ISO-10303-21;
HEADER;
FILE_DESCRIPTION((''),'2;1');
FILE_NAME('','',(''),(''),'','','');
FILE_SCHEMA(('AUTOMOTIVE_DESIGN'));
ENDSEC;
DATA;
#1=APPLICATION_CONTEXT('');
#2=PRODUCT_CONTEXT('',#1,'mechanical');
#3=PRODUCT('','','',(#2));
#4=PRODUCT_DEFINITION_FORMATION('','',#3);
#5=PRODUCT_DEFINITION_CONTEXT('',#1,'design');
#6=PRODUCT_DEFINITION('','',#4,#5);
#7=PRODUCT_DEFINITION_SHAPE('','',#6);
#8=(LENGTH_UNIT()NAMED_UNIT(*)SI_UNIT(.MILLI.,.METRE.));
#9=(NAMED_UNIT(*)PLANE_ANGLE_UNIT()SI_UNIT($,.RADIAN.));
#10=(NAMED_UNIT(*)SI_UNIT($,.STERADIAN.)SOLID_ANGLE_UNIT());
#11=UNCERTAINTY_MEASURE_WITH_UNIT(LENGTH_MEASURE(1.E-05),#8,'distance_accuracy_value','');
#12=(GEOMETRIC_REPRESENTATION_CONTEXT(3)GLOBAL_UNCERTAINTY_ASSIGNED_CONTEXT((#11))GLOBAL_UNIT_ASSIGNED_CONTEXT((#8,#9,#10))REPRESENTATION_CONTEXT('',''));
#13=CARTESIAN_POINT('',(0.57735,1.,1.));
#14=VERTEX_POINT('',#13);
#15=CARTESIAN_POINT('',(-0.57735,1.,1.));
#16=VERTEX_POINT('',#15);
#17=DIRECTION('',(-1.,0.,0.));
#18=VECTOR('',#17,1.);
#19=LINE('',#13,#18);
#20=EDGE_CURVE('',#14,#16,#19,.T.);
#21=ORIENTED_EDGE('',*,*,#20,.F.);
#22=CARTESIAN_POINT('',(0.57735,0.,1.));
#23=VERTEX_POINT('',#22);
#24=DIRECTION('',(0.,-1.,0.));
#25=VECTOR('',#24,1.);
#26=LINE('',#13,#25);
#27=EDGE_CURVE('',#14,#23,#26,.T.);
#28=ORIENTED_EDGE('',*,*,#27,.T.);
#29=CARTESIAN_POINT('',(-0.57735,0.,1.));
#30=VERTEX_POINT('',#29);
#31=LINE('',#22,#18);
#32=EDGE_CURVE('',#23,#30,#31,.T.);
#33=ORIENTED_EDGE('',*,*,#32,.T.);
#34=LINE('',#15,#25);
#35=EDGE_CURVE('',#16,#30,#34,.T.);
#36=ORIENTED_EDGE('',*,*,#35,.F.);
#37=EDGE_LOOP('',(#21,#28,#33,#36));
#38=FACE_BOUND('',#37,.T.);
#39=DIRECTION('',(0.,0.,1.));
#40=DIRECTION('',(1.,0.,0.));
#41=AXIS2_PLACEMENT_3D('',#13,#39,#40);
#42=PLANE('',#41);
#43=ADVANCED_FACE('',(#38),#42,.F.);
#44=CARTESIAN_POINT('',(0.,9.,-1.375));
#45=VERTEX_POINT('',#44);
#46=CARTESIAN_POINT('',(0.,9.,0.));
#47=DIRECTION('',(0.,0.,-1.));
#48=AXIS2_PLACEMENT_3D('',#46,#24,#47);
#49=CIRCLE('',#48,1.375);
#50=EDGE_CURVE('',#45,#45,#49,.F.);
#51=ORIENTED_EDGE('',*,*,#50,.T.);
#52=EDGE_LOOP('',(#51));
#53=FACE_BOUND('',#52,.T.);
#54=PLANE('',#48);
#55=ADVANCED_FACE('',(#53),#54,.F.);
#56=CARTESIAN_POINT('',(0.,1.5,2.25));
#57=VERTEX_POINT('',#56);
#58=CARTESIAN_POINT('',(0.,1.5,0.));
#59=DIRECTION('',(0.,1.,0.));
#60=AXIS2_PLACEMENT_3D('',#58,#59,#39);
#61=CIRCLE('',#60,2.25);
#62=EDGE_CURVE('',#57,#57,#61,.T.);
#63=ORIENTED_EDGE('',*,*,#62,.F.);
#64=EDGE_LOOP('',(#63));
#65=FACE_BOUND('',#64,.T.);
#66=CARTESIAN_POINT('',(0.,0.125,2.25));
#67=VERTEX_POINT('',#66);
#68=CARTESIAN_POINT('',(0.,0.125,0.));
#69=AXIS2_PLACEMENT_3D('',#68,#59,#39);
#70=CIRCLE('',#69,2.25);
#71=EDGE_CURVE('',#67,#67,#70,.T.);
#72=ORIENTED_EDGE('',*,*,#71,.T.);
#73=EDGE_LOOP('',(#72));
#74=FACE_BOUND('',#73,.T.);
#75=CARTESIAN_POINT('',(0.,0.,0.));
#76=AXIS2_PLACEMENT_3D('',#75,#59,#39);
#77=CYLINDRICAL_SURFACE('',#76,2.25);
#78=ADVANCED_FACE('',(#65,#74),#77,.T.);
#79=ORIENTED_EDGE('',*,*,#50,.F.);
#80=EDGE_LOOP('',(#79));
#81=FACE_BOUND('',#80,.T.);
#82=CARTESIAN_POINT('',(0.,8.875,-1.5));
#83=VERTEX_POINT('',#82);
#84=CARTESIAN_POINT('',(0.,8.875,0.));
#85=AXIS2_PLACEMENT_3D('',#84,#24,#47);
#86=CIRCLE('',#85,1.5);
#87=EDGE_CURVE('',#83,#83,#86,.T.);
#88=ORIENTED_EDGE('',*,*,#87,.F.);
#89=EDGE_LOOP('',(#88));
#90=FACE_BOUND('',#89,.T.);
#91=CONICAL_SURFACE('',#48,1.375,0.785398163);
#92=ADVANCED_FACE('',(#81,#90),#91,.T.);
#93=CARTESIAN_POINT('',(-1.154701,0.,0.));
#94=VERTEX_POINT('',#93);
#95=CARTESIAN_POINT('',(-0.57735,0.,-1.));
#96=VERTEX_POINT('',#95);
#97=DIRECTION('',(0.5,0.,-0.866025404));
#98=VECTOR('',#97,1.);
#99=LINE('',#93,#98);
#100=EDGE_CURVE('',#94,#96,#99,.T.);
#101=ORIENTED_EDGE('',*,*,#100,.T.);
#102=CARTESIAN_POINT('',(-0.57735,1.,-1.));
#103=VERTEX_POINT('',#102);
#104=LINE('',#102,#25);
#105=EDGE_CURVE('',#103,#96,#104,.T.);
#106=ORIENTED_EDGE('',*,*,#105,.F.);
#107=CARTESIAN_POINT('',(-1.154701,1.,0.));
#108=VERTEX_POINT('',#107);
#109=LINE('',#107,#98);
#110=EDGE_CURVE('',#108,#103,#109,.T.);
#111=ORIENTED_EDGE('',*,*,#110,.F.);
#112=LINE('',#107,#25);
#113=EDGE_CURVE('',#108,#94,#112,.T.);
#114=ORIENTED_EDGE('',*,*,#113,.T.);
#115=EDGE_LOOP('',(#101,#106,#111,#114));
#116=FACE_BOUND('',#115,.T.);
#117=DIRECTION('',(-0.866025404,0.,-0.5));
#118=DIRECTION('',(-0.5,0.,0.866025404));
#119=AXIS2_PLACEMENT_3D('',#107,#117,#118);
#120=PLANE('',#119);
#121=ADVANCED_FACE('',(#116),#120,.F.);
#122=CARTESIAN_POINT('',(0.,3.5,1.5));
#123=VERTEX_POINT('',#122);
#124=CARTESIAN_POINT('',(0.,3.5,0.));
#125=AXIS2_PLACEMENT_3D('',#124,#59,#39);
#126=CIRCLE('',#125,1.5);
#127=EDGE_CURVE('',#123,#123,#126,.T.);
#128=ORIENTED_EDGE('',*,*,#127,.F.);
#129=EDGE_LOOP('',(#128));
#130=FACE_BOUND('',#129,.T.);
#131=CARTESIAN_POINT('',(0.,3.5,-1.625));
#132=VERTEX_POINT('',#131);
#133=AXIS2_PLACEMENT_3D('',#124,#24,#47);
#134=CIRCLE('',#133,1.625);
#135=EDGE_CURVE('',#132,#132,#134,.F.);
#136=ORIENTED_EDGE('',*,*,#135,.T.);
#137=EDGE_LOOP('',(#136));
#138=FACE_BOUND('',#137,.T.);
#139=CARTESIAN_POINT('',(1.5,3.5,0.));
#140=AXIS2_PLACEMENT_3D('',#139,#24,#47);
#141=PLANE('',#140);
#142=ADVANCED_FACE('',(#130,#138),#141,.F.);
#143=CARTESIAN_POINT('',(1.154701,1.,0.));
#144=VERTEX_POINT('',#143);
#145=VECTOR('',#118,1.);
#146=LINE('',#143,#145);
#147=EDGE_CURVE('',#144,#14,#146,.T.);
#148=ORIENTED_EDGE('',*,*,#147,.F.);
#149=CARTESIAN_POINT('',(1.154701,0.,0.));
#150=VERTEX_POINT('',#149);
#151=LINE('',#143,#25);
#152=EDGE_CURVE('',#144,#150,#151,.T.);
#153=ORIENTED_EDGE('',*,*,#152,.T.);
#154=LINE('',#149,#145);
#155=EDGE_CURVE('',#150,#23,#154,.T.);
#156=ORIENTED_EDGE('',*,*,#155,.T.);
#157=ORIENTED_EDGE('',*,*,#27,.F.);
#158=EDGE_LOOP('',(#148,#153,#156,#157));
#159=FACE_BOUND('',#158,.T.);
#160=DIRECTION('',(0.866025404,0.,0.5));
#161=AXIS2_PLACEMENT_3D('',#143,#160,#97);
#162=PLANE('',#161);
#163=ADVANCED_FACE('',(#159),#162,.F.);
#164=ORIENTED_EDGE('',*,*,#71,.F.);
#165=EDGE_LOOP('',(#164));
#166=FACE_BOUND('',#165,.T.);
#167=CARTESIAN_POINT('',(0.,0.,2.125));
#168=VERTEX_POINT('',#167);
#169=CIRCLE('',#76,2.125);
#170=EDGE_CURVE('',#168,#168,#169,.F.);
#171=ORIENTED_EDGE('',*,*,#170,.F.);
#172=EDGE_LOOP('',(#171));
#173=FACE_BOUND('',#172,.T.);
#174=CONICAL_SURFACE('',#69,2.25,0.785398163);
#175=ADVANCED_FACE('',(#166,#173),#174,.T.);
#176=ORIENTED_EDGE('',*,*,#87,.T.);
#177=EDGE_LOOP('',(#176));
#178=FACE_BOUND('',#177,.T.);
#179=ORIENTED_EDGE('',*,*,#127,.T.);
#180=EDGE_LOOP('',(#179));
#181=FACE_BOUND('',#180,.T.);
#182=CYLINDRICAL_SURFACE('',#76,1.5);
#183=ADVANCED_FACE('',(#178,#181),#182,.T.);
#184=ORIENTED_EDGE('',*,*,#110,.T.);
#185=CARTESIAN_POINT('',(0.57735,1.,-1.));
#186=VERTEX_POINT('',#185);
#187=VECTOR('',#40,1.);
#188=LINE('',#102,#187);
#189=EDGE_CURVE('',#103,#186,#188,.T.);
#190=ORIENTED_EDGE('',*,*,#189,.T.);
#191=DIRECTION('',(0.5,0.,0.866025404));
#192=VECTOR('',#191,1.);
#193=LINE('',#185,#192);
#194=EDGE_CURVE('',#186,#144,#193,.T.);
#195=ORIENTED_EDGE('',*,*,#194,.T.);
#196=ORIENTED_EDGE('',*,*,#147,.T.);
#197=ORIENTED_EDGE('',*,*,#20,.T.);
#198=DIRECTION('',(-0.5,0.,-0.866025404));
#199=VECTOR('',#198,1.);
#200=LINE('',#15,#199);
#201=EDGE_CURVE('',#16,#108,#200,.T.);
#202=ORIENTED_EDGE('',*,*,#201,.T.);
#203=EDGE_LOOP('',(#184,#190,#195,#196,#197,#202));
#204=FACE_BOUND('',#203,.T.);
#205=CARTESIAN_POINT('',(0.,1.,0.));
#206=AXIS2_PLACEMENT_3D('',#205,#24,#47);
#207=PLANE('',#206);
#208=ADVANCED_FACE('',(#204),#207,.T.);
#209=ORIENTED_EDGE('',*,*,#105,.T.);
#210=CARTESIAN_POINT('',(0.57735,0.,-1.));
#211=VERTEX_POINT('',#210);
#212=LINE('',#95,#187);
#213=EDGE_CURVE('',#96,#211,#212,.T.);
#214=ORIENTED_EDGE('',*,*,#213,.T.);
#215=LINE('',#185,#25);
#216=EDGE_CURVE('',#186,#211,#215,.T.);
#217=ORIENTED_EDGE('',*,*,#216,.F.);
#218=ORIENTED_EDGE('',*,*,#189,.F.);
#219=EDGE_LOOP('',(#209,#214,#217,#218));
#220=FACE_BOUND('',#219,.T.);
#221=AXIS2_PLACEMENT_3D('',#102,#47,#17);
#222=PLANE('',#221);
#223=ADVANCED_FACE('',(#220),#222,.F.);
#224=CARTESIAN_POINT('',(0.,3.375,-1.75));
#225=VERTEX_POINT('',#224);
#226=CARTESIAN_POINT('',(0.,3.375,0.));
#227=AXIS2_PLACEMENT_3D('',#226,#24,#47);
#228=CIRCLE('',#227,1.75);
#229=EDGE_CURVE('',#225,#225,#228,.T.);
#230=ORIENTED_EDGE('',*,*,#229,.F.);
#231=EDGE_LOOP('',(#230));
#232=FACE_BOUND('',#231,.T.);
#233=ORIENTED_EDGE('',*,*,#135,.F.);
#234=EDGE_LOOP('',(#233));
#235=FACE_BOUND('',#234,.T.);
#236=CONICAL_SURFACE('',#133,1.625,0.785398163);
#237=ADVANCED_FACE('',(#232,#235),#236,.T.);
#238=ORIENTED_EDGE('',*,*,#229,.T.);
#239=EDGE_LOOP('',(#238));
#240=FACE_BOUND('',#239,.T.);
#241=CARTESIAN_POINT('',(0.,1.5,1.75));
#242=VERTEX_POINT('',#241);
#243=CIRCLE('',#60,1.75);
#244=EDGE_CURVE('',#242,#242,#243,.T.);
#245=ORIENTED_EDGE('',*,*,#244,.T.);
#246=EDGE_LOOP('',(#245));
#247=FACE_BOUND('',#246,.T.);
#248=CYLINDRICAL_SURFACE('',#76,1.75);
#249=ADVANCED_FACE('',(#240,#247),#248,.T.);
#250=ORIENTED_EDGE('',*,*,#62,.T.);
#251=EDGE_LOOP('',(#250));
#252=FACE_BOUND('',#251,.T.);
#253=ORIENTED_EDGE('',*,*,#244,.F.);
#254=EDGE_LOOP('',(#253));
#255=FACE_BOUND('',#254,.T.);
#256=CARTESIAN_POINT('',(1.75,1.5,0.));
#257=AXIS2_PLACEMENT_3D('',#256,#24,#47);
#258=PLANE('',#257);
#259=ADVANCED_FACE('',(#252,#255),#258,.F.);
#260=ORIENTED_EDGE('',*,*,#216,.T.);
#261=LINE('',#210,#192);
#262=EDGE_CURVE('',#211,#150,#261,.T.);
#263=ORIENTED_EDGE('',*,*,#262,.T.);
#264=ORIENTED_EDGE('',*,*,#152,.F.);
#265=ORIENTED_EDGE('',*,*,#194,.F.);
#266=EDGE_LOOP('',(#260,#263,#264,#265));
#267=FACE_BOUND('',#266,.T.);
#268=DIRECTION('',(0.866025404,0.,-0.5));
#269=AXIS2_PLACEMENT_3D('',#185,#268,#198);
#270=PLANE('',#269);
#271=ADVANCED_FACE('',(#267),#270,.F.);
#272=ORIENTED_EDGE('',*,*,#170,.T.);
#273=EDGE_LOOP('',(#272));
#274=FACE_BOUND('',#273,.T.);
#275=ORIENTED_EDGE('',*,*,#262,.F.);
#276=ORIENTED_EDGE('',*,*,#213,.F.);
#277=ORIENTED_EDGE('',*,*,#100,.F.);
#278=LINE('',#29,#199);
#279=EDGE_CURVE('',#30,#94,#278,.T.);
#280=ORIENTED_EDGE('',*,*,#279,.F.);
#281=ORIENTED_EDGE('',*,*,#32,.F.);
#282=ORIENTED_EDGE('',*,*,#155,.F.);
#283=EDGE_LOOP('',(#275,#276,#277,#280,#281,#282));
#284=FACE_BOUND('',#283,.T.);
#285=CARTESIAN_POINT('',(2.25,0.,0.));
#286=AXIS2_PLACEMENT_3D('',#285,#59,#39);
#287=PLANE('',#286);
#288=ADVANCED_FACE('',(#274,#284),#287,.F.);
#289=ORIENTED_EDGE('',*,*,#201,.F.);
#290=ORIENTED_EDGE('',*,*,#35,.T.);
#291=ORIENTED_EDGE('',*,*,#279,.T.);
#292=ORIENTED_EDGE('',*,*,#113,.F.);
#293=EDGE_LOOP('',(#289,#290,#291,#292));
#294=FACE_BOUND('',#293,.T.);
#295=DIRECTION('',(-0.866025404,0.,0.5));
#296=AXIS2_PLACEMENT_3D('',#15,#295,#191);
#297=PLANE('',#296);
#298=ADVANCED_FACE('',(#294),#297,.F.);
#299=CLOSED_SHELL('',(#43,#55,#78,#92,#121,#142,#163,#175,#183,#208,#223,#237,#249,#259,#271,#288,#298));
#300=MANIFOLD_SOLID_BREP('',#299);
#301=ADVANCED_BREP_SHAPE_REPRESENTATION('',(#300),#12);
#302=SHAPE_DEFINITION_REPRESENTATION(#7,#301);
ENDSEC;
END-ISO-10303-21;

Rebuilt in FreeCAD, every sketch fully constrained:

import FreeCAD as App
import Part
import Sketcher
from FreeCAD import Vector
Q = App.Units.Quantity


def edges_at(feature, points):
    """Names of the edges that pass closest to the given points."""
    edges = feature.Shape.Edges
    near = lambda p: min(range(len(edges)), key=lambda i: edges[i].distToShape(Part.Vertex(*p))[0])
    return sorted({f"Edge{near(p) + 1}" for p in points})


def add_polygon(sketch, points):
    """Adds a closed chain of lines whose ends are joined by coincident constraints."""
    first, n = sketch.GeometryCount, len(points)
    for a, b in zip(points, points[1:] + points[:1]):
        sketch.addGeometry(Part.LineSegment(App.Vector(*a, 0), App.Vector(*b, 0)), False)
    for i in range(n):
        sketch.addConstraint(Sketcher.Constraint("Coincident", first + i, 2, first + (i + 1) % n, 1))

doc = App.newDocument("Part")
body = doc.addObject("PartDesign::Body", "Body")

# Sketch on XY plane
sketch1 = doc.addObject("Sketcher::SketchObject", "Sketch")
body.addObject(sketch1)
sketch1.AttachmentSupport = (doc.XY_Plane, [""])
sketch1.MapMode = "FlatFace"
add_polygon(sketch1, [(0, 9), (0, 0), (2.25, 0), (2.25, 1.5), (1.75, 1.5), (1.75, 3.5), (1.5, 3.5), (1.5, 9)])  # lines 0-7
sketch1.addConstraint(Sketcher.Constraint("Vertical", 0))
sketch1.addConstraint(Sketcher.Constraint("Horizontal", 1))
sketch1.addConstraint(Sketcher.Constraint("Vertical", 2))
sketch1.addConstraint(Sketcher.Constraint("Horizontal", 3))
sketch1.addConstraint(Sketcher.Constraint("Vertical", 4))
sketch1.addConstraint(Sketcher.Constraint("Horizontal", 5))
sketch1.addConstraint(Sketcher.Constraint("Vertical", 6))
sketch1.addConstraint(Sketcher.Constraint("Horizontal", 7))
sketch1.addConstraint(Sketcher.Constraint("Coincident", 0, 2, -1, 1))
sketch1.addConstraint(Sketcher.Constraint("Equal", 7, 2))
sketch1.addConstraint(Sketcher.Constraint("DistanceY", 0, 2, 0, 1, 9.0))
sketch1.addConstraint(Sketcher.Constraint("DistanceY", 4, 1, 4, 2, 2.0))
sketch1.addConstraint(Sketcher.Constraint("DistanceX", 3, 2, 3, 1, 0.5))
sketch1.addConstraint(Sketcher.Constraint("DistanceX", 7, 2, 7, 1, 1.5))
sketch1.addConstraint(Sketcher.Constraint("DistanceX", 1, 1, 1, 2, 2.25))
revolution = doc.addObject("PartDesign::Revolution", "Revolution")
body.addObject(revolution)
revolution.Profile = sketch1
revolution.ReferenceAxis = (sketch1, ["V_Axis"])
revolution.Angle = 360

# Sketch on XZ plane
sketch2 = doc.addObject("Sketcher::SketchObject", "Sketch001")
body.addObject(sketch2)
sketch2.AttachmentSupport = (doc.XZ_Plane, [""])
sketch2.MapMode = "FlatFace"
add_polygon(sketch2, [(1.2, 0), (0.6, 1), (-0.6, 1), (-1.2, 0), (-0.6, -1), (0.6, -1)])  # lines 0-5
sketch2.addConstraint(Sketcher.Constraint("Horizontal", 1))
sketch2.addConstraint(Sketcher.Constraint("Horizontal", 4))
sketch2.addConstraint(Sketcher.Constraint("Symmetric", 0, 2, 3, 2, -1, 1))
sketch2.addConstraint(Sketcher.Constraint("Symmetric", 2, 2, 5, 2, -1, 1))
sketch2.addConstraint(Sketcher.Constraint("PointOnObject", 2, 2, -1))
sketch2.addConstraint(Sketcher.Constraint("Parallel", 2, 5))
sketch2.addConstraint(Sketcher.Constraint("Vertical", 1, 2, 3, 2))
sketch2.addConstraint(Sketcher.Constraint("Angle", 0, Q("120 deg")))
sketch2.addConstraint(Sketcher.Constraint("DistanceY", -1, 1, 0, 2, 1.0))
sketch2.addConstraint(Sketcher.Constraint("DistanceX", 1, 2, 1, 1, 1.154701))
pocket1 = doc.addObject("PartDesign::Pocket", "Pocket")
body.addObject(pocket1)
pocket1.Profile = sketch2
pocket1.Length = 1
doc.recompute()

chamfer = doc.addObject("PartDesign::Chamfer", "Chamfer")
body.addObject(chamfer)
chamfer.Base = (pocket1, edges_at(pocket1, [(-2.25, 0, 0), (-1.75, 3.5, 0), (-1.5, 9, 0)]))
chamfer.Size = 0.125

doc.recompute()
